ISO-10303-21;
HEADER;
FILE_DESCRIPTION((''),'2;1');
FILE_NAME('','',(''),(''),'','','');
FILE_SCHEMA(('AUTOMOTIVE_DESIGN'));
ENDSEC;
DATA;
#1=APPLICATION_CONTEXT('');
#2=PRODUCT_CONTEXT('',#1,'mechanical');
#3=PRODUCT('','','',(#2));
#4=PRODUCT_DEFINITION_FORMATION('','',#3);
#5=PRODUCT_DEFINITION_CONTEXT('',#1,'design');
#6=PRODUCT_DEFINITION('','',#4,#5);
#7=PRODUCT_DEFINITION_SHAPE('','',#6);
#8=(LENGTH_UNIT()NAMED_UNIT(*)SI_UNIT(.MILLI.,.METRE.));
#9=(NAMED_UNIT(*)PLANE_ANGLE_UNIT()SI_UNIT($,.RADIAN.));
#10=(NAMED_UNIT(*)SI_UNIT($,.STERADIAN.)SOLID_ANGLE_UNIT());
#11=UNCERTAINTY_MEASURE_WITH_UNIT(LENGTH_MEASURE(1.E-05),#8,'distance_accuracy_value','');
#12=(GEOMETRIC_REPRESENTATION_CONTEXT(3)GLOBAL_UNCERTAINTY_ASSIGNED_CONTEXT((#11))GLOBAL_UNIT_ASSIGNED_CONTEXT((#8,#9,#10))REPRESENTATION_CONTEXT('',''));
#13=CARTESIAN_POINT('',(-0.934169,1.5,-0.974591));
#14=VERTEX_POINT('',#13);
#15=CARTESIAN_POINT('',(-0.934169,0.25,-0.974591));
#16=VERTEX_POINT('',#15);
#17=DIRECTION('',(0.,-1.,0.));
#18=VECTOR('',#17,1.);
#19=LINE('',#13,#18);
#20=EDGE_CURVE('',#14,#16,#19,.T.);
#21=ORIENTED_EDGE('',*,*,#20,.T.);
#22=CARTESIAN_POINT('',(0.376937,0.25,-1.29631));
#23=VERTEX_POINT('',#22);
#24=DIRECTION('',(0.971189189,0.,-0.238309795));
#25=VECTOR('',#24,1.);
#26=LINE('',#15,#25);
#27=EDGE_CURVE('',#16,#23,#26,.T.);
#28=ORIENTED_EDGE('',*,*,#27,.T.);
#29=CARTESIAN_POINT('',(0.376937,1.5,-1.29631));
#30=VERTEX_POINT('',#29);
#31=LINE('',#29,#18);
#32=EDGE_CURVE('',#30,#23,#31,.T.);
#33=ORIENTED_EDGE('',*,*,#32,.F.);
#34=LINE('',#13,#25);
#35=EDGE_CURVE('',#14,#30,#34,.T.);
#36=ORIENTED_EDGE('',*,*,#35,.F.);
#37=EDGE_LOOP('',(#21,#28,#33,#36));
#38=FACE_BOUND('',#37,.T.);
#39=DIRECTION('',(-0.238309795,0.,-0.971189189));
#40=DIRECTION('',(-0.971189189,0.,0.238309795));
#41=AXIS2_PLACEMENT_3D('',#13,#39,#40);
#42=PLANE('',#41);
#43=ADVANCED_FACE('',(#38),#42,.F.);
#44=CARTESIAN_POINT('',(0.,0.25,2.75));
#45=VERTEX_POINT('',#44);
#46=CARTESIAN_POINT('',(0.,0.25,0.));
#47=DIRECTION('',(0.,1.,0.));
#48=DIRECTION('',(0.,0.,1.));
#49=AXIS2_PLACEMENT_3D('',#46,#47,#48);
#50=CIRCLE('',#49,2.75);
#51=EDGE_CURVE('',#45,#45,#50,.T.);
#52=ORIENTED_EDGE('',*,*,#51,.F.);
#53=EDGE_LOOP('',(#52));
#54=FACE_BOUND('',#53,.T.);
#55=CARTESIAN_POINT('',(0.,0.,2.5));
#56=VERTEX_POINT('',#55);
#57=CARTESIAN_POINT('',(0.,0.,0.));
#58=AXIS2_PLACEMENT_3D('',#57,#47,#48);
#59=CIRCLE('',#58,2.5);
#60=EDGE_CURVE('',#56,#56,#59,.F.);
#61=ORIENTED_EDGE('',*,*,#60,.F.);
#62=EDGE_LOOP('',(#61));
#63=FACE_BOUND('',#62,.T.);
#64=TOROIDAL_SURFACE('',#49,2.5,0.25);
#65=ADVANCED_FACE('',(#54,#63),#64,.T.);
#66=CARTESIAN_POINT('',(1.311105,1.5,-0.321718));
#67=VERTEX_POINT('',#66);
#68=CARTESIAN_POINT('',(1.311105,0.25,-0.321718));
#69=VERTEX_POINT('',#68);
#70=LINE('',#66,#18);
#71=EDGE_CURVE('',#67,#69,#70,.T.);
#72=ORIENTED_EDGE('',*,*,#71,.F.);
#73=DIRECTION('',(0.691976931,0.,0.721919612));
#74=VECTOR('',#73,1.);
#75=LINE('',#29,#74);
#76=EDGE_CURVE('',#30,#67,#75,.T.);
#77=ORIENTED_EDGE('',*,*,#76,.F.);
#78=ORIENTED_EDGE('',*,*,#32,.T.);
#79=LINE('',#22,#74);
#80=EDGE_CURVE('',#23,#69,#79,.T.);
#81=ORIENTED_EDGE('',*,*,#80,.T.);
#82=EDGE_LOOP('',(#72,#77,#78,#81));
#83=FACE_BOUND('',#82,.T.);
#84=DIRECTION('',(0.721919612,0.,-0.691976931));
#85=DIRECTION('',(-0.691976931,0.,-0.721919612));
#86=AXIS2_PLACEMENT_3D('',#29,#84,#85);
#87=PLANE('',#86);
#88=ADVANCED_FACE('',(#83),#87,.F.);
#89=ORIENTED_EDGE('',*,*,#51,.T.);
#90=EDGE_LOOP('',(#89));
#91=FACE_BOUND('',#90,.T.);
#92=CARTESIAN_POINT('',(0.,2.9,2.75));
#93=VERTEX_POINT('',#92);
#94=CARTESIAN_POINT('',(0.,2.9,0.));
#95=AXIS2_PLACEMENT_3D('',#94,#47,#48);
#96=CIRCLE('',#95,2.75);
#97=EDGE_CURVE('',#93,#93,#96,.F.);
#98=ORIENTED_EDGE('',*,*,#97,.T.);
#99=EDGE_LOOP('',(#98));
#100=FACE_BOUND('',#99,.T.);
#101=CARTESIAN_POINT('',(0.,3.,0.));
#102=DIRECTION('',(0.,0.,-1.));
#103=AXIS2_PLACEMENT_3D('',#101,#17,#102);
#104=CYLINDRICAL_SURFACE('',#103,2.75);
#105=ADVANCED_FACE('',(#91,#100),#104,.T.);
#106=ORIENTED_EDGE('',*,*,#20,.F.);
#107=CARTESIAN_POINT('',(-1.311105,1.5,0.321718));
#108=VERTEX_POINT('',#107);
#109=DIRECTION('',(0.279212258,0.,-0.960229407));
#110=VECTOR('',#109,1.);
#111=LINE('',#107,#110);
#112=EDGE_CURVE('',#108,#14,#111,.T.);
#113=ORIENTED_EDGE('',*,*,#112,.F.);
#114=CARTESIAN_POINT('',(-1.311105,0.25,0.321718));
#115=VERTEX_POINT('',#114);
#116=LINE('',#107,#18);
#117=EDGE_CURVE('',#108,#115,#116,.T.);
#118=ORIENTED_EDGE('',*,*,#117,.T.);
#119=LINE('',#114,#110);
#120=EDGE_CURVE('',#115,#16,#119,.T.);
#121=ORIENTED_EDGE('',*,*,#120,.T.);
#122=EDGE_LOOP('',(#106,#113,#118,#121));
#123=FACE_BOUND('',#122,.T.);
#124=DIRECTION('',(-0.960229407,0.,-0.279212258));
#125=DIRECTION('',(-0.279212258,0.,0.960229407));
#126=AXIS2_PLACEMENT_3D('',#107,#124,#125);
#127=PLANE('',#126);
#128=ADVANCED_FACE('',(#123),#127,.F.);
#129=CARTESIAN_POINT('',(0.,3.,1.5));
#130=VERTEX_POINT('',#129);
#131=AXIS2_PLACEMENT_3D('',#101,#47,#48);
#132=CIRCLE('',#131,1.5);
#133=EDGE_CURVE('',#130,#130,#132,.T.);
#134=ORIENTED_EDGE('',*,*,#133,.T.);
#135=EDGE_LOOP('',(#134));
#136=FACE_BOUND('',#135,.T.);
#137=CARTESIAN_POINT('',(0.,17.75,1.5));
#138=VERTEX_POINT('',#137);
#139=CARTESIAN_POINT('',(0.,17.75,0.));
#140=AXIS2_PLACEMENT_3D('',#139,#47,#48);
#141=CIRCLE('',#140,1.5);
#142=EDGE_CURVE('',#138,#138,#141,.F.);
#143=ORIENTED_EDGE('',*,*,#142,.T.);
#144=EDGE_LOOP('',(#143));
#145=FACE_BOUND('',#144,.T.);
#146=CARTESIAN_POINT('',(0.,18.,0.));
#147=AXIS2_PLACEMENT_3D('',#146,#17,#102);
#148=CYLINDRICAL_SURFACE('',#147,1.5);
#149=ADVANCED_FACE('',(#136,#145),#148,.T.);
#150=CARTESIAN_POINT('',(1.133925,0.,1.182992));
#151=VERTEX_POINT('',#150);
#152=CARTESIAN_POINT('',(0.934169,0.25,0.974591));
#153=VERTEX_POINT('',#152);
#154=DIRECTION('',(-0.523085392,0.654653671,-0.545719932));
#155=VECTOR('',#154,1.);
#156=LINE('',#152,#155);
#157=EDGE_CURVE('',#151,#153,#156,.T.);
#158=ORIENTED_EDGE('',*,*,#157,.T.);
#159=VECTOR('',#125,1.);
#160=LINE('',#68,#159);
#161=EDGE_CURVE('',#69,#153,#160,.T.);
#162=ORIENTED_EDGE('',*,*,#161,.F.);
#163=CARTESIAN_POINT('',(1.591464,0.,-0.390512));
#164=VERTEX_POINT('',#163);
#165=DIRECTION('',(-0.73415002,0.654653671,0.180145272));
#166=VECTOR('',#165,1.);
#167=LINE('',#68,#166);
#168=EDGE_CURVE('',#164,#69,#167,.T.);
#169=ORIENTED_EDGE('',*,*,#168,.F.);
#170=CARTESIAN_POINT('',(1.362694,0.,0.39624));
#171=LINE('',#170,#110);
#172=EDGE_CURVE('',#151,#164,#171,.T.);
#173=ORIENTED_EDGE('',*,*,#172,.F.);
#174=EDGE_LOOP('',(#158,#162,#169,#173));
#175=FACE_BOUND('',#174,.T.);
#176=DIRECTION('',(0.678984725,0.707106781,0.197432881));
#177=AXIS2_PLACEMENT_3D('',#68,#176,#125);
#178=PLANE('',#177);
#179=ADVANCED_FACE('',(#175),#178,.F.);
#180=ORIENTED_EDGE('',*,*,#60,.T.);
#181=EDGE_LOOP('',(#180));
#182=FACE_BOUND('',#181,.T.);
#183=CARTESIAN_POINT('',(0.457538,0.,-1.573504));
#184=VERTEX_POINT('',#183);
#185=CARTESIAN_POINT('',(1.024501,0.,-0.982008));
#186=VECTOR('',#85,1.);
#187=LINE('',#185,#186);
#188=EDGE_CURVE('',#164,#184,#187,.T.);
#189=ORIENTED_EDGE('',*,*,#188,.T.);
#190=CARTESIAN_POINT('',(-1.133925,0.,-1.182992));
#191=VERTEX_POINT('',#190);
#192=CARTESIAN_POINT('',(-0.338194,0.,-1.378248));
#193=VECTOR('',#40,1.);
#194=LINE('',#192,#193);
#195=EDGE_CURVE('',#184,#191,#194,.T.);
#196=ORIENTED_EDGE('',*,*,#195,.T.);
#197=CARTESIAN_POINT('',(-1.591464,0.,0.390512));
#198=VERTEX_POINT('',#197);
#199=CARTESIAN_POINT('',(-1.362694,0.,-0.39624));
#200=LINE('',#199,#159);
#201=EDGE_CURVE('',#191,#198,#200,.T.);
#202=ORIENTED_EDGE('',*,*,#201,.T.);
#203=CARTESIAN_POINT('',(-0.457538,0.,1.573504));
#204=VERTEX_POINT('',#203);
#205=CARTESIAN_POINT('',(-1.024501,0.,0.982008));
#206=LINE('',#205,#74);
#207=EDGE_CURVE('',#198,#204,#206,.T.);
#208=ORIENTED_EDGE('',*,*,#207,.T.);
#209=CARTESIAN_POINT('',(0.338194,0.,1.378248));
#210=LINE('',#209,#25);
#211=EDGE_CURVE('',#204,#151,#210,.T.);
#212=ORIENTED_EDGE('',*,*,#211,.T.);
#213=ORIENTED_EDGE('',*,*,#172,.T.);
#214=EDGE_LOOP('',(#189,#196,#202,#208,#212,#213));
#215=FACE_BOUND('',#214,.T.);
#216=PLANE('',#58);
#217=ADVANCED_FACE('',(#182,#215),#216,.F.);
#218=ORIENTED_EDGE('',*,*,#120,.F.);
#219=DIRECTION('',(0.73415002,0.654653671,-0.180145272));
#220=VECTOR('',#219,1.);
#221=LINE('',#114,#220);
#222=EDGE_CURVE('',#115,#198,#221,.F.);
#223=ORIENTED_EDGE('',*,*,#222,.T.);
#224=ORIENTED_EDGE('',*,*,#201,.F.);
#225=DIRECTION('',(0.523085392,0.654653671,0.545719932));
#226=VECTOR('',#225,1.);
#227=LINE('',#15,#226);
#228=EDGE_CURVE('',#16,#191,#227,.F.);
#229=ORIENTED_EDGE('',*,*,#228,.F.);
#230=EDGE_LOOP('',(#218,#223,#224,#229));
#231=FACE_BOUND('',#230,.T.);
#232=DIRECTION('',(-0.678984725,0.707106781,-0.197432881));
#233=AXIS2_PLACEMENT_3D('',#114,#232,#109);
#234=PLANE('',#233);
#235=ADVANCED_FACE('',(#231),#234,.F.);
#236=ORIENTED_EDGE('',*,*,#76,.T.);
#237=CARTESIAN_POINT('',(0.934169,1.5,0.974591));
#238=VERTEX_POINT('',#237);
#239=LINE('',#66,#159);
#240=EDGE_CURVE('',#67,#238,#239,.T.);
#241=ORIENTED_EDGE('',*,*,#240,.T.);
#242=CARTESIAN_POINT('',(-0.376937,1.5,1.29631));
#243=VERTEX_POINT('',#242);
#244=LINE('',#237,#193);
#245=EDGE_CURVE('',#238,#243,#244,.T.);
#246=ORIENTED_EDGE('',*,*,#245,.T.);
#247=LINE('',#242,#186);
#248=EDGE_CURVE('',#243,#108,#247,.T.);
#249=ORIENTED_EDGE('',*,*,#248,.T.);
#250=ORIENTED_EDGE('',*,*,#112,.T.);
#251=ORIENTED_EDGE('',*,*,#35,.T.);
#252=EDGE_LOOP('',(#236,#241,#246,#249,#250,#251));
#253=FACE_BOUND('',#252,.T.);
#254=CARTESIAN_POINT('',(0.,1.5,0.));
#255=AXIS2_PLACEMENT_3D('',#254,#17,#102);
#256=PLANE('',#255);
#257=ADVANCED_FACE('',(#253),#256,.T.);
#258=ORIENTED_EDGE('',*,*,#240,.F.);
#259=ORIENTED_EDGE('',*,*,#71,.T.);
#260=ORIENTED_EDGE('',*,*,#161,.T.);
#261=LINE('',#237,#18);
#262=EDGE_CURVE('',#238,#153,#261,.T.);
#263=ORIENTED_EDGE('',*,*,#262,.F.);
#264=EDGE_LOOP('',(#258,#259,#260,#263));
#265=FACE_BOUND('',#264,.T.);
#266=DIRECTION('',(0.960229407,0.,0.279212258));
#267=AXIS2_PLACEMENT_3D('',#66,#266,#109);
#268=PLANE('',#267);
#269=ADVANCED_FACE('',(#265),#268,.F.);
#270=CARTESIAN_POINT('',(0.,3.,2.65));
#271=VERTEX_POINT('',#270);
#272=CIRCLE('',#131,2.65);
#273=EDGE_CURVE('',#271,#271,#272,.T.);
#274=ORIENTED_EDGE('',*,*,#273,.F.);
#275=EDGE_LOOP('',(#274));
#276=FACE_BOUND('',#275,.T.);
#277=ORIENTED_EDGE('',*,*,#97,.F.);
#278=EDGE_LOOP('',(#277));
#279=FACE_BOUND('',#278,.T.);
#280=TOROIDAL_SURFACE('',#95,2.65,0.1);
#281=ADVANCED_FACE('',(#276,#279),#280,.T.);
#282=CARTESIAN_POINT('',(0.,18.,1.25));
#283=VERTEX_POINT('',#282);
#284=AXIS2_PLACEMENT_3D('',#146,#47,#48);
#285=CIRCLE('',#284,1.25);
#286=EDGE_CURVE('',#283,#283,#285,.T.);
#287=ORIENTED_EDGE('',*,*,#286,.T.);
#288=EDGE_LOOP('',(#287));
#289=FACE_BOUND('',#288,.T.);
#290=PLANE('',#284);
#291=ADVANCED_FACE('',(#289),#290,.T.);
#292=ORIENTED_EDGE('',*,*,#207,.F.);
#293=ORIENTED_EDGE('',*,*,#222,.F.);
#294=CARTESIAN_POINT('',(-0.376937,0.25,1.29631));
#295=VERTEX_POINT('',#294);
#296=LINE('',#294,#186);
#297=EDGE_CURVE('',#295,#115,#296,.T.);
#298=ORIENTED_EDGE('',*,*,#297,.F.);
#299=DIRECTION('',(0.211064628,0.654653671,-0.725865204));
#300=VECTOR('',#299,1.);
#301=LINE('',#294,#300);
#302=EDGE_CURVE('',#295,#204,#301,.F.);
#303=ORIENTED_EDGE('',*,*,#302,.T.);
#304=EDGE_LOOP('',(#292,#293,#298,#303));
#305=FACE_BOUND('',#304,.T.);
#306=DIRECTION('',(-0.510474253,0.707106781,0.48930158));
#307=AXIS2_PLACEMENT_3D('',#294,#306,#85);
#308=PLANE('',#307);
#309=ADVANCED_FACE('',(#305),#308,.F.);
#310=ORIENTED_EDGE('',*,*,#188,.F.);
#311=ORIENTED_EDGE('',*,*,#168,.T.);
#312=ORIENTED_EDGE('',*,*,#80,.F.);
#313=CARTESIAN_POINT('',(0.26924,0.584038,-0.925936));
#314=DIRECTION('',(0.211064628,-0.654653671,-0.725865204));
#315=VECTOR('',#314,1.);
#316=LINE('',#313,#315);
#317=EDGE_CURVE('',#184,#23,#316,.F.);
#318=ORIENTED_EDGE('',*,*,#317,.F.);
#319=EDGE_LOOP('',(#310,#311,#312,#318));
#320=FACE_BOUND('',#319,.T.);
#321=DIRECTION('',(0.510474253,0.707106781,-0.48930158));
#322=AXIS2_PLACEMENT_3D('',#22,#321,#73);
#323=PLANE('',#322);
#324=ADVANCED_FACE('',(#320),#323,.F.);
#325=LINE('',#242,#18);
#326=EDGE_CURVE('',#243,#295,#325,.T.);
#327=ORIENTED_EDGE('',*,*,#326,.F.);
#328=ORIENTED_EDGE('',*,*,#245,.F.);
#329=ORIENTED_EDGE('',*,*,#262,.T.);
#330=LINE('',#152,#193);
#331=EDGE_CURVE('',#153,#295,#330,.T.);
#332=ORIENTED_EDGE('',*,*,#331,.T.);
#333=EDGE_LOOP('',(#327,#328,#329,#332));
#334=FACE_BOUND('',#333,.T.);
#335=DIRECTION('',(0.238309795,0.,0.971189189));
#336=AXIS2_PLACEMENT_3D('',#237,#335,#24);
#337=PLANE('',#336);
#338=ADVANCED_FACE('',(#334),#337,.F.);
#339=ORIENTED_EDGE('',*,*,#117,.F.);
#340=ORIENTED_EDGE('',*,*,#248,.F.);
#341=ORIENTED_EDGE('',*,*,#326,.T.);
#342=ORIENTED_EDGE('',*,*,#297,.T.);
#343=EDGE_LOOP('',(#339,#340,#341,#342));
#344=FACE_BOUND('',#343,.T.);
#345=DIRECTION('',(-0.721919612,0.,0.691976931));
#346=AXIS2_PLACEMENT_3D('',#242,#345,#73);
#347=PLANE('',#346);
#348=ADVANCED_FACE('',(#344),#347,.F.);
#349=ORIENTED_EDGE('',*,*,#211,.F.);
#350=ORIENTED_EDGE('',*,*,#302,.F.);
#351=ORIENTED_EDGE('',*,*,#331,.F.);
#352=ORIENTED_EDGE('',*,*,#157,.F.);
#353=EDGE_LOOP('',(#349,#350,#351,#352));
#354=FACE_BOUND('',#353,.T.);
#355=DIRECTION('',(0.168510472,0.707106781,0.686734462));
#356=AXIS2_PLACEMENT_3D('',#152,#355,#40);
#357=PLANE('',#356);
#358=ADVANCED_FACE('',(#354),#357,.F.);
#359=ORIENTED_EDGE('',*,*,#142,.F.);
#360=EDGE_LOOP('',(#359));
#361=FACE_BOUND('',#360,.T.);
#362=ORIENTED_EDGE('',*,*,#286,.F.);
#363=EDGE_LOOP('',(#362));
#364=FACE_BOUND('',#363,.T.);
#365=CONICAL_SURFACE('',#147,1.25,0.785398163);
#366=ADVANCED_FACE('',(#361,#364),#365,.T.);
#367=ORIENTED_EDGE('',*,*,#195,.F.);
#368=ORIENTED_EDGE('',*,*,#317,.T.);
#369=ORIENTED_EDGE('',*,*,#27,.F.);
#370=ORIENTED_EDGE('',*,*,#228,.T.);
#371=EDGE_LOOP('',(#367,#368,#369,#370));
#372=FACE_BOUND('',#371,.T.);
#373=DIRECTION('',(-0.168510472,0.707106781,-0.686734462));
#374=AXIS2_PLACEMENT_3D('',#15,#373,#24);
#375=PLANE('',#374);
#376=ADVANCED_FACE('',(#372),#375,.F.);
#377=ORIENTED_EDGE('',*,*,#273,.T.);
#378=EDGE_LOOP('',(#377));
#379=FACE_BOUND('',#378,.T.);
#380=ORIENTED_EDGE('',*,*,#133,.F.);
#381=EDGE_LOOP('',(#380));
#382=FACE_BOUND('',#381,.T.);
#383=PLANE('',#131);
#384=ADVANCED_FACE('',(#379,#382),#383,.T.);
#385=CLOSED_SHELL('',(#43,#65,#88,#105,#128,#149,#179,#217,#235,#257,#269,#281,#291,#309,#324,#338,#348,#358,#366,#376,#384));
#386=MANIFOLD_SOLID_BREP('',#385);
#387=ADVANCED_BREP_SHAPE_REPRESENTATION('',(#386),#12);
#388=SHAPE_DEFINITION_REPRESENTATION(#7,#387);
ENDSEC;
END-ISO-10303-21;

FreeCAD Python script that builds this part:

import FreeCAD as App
import Part
import Sketcher

V = App.Vector
Q = App.Units.Quantity


def edges_at(feature, points):
    """Names of the edges that pass closest to the given points."""
    edges = feature.Shape.Edges
    near = lambda p: min(range(len(edges)), key=lambda i: edges[i].distToShape(Part.Vertex(*p))[0])
    return sorted({f"Edge{near(p) + 1}" for p in points})

doc = App.newDocument("Part")
params = doc.addObject("Spreadsheet::Sheet", "Params")
for row, (alias, value) in enumerate([
    ("sketch1_diameter", "5.5 mm"),
    ("pad1_length", "3 mm"),
    ("sketch2_diameter", "3 mm"),
    ("pad2_length", "15 mm"),
    ("sketch3_length", "1.35 mm"),
    ("pocket1_length", "1.5 mm"),
    ("chamfer_size", "0.25 mm"),
    ("fillet_radius", "0.25 mm"),
    ("chamfer2_size", "0.25 mm"),
    ("fillet2_radius", "0.1 mm"),
], start=1):
    params.set(f"A{row}", alias)
    params.set(f"B{row}", "=" + value)
    params.setAlias(f"B{row}", alias)

body = doc.addObject("PartDesign::Body", "Body")

sketch1 = body.newObject("Sketcher::SketchObject", "Sketch")
sketch1.AttachmentSupport = (doc.getObject("XZ_Plane"), [""])
sketch1.MapMode = "FlatFace"
sketch1.addGeometry(Part.Circle(V(0, 0, 0), V(0, 0, 1), 2.8), False)
sketch1.addConstraint(Sketcher.Constraint("Coincident", 0, 3, -1, 1))
sketch1.addConstraint(Sketcher.Constraint("Diameter", 0, Q("5.5 mm")))
sketch1.setExpression("Constraints[1]", "Params.sketch1_diameter")
pad1 = body.newObject("PartDesign::Pad", "Pad")
pad1.Profile = sketch1
pad1.setExpression("Length", "Params.pad1_length")
pad1.Reversed = True

sketch2 = body.newObject("Sketcher::SketchObject", "Sketch001")
sketch2.AttachmentSupport = (doc.getObject("XZ_Plane"), [""])
sketch2.MapMode = "FlatFace"
sketch2.AttachmentOffset = App.Placement(V(0, 0, -3), App.Rotation())
sketch2.addGeometry(Part.Circle(V(0, 0, 0), V(0, 0, 1), 1.5), False)
sketch2.addConstraint(Sketcher.Constraint("Coincident", 0, 3, -1, 1))
sketch2.addConstraint(Sketcher.Constraint("Diameter", 0, Q("3 mm")))
sketch2.setExpression("Constraints[1]", "Params.sketch2_diameter")
pad2 = body.newObject("PartDesign::Pad", "Pad001")
pad2.Profile = sketch2
pad2.setExpression("Length", "Params.pad2_length")
pad2.Reversed = True

sketch3 = body.newObject("Sketcher::SketchObject", "Sketch002")
sketch3.AttachmentSupport = (doc.getObject("XZ_Plane"), [""])
sketch3.MapMode = "FlatFace"
sketch3.addGeometry(Part.LineSegment(V(0.9, 1, 0), V(-0.4, 1.3, 0)), False)
sketch3.addGeometry(Part.LineSegment(V(-0.4, 1.3, 0), V(-1.3, 0.3, 0)), False)
sketch3.addGeometry(Part.LineSegment(V(-1.3, 0.3, 0), V(-0.9, -1, 0)), False)
sketch3.addGeometry(Part.LineSegment(V(-0.9, -1, 0), V(0.4, -1.3, 0)), False)
sketch3.addGeometry(Part.LineSegment(V(0.4, -1.3, 0), V(1.3, -0.3, 0)), False)
sketch3.addGeometry(Part.LineSegment(V(1.3, -0.3, 0), V(0.9, 1, 0)), False)
sketch3.addConstraint(Sketcher.Constraint("Coincident", 0, 2, 1, 1))
sketch3.addConstraint(Sketcher.Constraint("Coincident", 1, 2, 2, 1))
sketch3.addConstraint(Sketcher.Constraint("Coincident", 2, 2, 3, 1))
sketch3.addConstraint(Sketcher.Constraint("Coincident", 3, 2, 4, 1))
sketch3.addConstraint(Sketcher.Constraint("Coincident", 4, 2, 5, 1))
sketch3.addConstraint(Sketcher.Constraint("Coincident", 5, 2, 0, 1))
sketch3.addConstraint(Sketcher.Constraint("Symmetric", 0, 2, 3, 2, -1, 1))
sketch3.addConstraint(Sketcher.Constraint("Symmetric", 1, 2, 4, 2, -1, 1))
sketch3.addConstraint(Sketcher.Constraint("Symmetric", 2, 2, 5, 2, -1, 1))
sketch3.addConstraint(Sketcher.Constraint("Equal", 0, 1))
sketch3.addConstraint(Sketcher.Constraint("Equal", 1, 2))
sketch3.addConstraint(Sketcher.Constraint("Distance", 0, Q("1.35 mm")))
sketch3.addConstraint(Sketcher.Constraint("DistanceY", 2, 2, 0, 2, Q("2.270901 mm")))
sketch3.addConstraint(Sketcher.Constraint("DistanceY", -1, 1, 0, 2, Q("1.29631 mm")))
sketch3.addConstraint(Sketcher.Constraint("DistanceY", -1, 1, 1, 2, Q("0.321718 mm")))
sketch3.setExpression("Constraints[11]", "Params.sketch3_length")
pocket1 = body.newObject("PartDesign::Pocket", "Pocket")
pocket1.Profile = sketch3
pocket1.setExpression("Length", "Params.pocket1_length")
doc.recompute()

chamfer = body.newObject("PartDesign::Chamfer", "Chamfer")
chamfer.Base = (pocket1, edges_at(pocket1, [
    (1.123, 0, 0.326),
    (0.279, 0, 1.135),
    (-0.844, 0, 0.809),
    (-1.123, 0, -0.326),
    (-0.279, 0, -1.135),
    (0.844, 0, -0.809),
]))
chamfer.setExpression("Size", "Params.chamfer_size")
doc.recompute()

fillet = body.newObject("PartDesign::Fillet", "Fillet")
fillet.Base = (chamfer, edges_at(chamfer, [(0, 0, -2.75)]))
fillet.setExpression("Radius", "Params.fillet_radius")
doc.recompute()

chamfer2 = body.newObject("PartDesign::Chamfer", "Chamfer001")
chamfer2.Base = (fillet, edges_at(fillet, [(0, 18, -1.5)]))
chamfer2.setExpression("Size", "Params.chamfer2_size")
doc.recompute()

fillet2 = body.newObject("PartDesign::Fillet", "Fillet001")
fillet2.Base = (chamfer2, edges_at(chamfer2, [(0, 3, -2.75)]))
fillet2.setExpression("Radius", "Params.fillet2_radius")

doc.recompute()
